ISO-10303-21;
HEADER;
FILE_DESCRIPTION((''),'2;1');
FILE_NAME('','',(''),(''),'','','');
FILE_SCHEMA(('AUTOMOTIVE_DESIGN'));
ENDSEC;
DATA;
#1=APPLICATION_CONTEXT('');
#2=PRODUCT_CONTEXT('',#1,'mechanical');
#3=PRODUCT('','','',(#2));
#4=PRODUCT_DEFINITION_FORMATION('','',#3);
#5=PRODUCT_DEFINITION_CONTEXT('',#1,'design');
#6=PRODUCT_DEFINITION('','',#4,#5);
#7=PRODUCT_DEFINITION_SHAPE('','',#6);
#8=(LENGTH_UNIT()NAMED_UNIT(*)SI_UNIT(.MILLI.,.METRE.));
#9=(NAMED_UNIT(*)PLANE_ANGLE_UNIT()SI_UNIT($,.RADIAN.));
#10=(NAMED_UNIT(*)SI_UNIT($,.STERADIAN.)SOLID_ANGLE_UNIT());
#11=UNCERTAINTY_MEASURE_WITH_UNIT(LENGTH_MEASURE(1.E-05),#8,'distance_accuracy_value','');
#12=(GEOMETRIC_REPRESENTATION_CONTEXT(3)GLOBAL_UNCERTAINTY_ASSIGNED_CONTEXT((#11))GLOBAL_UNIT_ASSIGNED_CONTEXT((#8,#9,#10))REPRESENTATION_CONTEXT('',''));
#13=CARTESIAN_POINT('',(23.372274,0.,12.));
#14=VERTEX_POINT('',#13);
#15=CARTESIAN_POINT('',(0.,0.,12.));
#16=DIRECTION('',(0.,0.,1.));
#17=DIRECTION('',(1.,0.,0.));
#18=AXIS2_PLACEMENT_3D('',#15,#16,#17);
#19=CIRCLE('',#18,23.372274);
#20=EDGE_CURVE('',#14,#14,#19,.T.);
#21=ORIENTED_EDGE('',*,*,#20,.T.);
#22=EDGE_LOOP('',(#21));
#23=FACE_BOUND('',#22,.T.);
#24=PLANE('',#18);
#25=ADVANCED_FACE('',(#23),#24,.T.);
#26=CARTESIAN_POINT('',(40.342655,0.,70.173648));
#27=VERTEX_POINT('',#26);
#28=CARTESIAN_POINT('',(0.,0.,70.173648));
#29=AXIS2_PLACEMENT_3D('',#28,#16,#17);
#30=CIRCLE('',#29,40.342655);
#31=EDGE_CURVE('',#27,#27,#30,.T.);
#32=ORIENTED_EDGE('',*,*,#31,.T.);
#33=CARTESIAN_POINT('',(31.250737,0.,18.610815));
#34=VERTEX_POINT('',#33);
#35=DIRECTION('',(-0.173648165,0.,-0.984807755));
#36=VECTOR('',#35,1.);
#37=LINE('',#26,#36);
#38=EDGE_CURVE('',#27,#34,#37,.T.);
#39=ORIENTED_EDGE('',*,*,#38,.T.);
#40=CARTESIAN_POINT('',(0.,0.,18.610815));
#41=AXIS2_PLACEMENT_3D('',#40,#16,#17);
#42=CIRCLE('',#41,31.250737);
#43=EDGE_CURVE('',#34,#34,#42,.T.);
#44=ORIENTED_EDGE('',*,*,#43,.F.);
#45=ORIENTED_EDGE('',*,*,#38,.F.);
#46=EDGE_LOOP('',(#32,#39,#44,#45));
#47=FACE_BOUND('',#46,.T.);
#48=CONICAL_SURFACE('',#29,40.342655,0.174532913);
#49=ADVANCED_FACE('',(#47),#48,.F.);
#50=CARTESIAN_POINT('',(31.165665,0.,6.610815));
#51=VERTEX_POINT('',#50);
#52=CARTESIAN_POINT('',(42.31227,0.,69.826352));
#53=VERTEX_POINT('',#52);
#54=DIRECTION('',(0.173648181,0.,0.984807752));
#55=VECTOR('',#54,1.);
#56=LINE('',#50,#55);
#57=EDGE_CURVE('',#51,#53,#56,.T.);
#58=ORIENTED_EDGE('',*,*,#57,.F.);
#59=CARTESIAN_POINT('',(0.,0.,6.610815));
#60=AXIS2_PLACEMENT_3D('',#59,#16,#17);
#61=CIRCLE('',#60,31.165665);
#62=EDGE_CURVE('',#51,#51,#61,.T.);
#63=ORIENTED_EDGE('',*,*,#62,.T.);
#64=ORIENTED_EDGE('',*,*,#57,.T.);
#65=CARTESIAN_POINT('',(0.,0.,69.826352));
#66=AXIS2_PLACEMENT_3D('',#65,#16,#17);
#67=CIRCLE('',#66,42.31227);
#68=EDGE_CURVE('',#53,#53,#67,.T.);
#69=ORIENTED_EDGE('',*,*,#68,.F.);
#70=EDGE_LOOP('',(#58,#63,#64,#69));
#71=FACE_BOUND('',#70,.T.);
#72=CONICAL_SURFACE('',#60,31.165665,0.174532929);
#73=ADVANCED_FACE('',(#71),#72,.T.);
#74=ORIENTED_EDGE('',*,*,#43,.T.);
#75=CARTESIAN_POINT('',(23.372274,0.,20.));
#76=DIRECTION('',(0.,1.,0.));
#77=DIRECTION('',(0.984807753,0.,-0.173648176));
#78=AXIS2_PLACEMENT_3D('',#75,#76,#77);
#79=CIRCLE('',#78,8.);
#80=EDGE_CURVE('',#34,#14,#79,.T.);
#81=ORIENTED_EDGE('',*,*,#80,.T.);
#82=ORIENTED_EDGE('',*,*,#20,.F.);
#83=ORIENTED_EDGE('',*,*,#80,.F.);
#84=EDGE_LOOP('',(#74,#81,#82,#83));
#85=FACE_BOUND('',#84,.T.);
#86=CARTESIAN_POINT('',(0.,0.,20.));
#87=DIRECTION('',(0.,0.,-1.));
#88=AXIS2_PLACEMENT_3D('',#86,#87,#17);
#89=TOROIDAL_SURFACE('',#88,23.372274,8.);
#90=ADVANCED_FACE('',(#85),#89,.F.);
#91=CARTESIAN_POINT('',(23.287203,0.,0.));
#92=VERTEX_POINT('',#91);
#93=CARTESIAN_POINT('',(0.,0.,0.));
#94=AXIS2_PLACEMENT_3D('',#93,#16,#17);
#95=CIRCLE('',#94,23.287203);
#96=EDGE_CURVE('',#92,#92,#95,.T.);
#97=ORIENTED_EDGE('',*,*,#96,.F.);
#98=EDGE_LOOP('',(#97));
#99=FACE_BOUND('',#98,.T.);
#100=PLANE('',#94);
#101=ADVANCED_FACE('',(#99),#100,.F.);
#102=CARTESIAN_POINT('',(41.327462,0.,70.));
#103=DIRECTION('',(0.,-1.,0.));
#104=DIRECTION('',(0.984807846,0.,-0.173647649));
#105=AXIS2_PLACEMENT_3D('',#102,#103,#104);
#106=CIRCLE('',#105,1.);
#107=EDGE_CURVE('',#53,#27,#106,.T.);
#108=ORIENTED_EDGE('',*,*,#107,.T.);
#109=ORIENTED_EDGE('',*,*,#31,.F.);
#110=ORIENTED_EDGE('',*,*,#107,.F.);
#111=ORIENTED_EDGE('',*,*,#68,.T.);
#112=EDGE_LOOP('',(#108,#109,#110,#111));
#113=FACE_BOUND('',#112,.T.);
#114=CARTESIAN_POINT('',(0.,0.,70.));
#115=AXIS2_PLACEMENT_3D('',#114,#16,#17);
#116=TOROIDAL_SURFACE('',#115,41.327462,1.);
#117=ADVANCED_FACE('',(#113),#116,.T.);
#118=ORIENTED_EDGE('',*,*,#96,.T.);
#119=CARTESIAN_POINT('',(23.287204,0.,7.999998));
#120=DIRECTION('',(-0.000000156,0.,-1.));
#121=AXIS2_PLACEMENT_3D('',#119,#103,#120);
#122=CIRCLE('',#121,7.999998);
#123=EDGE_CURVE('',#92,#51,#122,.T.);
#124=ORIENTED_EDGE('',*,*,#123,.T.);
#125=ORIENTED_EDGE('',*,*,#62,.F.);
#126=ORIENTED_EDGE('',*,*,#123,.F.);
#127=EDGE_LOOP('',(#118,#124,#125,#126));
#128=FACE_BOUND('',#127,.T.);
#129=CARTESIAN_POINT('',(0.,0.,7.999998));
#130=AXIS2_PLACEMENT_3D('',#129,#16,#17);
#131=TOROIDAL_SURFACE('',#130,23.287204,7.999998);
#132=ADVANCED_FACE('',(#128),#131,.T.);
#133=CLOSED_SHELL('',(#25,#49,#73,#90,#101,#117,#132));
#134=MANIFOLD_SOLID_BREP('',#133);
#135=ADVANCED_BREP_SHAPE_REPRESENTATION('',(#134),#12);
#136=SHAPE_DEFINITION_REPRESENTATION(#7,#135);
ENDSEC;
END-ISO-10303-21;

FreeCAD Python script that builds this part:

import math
import FreeCAD as App
import Part
import Sketcher
Q = App.Units.Quantity

doc = App.newDocument("Part")
body = doc.addObject("PartDesign::Body", "Body")

sketch1 = doc.addObject("Sketcher::SketchObject", "Sketch")
body.addObject(sketch1)
sketch1.AttachmentSupport = (doc.XZ_Plane, [""])
sketch1.MapMode = "FlatFace"
sketch1.addGeometry([
    Part.LineSegment(App.Vector(0, 12, 0), App.Vector(0, 0, 0)),
    Part.LineSegment(App.Vector(0, 0, 0), App.Vector(23.3, 0, 0)),
    Part.ArcOfCircle(Part.Circle(App.Vector(23.3, 8, 0), App.Vector(0, 0, 1), 8), math.radians(-90), math.radians(-10)),
    Part.LineSegment(App.Vector(31.2, 6.6, 0), App.Vector(42.3, 69.8, 0)),
    Part.ArcOfCircle(Part.Circle(App.Vector(41.3, 70, 0), App.Vector(0, 0, 1), 1), math.radians(-10), math.radians(170)),
    Part.LineSegment(App.Vector(40.3, 70.2, 0), App.Vector(31.3, 18.6, 0)),
    Part.ArcOfCircle(Part.Circle(App.Vector(23.4, 20, 0), App.Vector(0, 0, 1), 8), math.radians(-90), math.radians(-10)),
    Part.LineSegment(App.Vector(23.4, 12, 0), App.Vector(0, 12, 0)),
], False)
sketch1.addConstraint([
    Sketcher.Constraint("Coincident", 0, 2, 1, 1),
    Sketcher.Constraint("Tangent", 1, 2, 2, 1),
    Sketcher.Constraint("Tangent", 2, 2, 3, 1),
    Sketcher.Constraint("Tangent", 3, 2, 4, 1),
    Sketcher.Constraint("Tangent", 4, 2, 5, 1),
    Sketcher.Constraint("Tangent", 5, 2, 6, 2),
    Sketcher.Constraint("Tangent", 6, 1, 7, 1),
    Sketcher.Constraint("Coincident", 7, 2, 0, 1),
    Sketcher.Constraint("Vertical", 0),
    Sketcher.Constraint("Horizontal", 1),
    Sketcher.Constraint("Horizontal", 7),
    Sketcher.Constraint("Coincident", 0, 2, -1, 1),
    Sketcher.Constraint("Parallel", 3, 5),
    Sketcher.Constraint("Radius", 2, 7.999998),
    Sketcher.Constraint("Radius", 4, 1.0),
    Sketcher.Constraint("Radius", 6, 8.0),
    Sketcher.Constraint("DistanceY", 0, 2, 0, 1, 12.0),
    Sketcher.Constraint("Angle", 3, Q("80 deg")),
    Sketcher.Constraint("DistanceY", -1, 1, 4, 3, 70.0),
    Sketcher.Constraint("DistanceX", 1, 1, 1, 2, 23.287203),
])
revolution = doc.addObject("PartDesign::Revolution", "Revolution")
body.addObject(revolution)
revolution.Profile = sketch1
revolution.ReferenceAxis = (sketch1, ["V_Axis"])
revolution.Angle = 360

doc.recompute()
